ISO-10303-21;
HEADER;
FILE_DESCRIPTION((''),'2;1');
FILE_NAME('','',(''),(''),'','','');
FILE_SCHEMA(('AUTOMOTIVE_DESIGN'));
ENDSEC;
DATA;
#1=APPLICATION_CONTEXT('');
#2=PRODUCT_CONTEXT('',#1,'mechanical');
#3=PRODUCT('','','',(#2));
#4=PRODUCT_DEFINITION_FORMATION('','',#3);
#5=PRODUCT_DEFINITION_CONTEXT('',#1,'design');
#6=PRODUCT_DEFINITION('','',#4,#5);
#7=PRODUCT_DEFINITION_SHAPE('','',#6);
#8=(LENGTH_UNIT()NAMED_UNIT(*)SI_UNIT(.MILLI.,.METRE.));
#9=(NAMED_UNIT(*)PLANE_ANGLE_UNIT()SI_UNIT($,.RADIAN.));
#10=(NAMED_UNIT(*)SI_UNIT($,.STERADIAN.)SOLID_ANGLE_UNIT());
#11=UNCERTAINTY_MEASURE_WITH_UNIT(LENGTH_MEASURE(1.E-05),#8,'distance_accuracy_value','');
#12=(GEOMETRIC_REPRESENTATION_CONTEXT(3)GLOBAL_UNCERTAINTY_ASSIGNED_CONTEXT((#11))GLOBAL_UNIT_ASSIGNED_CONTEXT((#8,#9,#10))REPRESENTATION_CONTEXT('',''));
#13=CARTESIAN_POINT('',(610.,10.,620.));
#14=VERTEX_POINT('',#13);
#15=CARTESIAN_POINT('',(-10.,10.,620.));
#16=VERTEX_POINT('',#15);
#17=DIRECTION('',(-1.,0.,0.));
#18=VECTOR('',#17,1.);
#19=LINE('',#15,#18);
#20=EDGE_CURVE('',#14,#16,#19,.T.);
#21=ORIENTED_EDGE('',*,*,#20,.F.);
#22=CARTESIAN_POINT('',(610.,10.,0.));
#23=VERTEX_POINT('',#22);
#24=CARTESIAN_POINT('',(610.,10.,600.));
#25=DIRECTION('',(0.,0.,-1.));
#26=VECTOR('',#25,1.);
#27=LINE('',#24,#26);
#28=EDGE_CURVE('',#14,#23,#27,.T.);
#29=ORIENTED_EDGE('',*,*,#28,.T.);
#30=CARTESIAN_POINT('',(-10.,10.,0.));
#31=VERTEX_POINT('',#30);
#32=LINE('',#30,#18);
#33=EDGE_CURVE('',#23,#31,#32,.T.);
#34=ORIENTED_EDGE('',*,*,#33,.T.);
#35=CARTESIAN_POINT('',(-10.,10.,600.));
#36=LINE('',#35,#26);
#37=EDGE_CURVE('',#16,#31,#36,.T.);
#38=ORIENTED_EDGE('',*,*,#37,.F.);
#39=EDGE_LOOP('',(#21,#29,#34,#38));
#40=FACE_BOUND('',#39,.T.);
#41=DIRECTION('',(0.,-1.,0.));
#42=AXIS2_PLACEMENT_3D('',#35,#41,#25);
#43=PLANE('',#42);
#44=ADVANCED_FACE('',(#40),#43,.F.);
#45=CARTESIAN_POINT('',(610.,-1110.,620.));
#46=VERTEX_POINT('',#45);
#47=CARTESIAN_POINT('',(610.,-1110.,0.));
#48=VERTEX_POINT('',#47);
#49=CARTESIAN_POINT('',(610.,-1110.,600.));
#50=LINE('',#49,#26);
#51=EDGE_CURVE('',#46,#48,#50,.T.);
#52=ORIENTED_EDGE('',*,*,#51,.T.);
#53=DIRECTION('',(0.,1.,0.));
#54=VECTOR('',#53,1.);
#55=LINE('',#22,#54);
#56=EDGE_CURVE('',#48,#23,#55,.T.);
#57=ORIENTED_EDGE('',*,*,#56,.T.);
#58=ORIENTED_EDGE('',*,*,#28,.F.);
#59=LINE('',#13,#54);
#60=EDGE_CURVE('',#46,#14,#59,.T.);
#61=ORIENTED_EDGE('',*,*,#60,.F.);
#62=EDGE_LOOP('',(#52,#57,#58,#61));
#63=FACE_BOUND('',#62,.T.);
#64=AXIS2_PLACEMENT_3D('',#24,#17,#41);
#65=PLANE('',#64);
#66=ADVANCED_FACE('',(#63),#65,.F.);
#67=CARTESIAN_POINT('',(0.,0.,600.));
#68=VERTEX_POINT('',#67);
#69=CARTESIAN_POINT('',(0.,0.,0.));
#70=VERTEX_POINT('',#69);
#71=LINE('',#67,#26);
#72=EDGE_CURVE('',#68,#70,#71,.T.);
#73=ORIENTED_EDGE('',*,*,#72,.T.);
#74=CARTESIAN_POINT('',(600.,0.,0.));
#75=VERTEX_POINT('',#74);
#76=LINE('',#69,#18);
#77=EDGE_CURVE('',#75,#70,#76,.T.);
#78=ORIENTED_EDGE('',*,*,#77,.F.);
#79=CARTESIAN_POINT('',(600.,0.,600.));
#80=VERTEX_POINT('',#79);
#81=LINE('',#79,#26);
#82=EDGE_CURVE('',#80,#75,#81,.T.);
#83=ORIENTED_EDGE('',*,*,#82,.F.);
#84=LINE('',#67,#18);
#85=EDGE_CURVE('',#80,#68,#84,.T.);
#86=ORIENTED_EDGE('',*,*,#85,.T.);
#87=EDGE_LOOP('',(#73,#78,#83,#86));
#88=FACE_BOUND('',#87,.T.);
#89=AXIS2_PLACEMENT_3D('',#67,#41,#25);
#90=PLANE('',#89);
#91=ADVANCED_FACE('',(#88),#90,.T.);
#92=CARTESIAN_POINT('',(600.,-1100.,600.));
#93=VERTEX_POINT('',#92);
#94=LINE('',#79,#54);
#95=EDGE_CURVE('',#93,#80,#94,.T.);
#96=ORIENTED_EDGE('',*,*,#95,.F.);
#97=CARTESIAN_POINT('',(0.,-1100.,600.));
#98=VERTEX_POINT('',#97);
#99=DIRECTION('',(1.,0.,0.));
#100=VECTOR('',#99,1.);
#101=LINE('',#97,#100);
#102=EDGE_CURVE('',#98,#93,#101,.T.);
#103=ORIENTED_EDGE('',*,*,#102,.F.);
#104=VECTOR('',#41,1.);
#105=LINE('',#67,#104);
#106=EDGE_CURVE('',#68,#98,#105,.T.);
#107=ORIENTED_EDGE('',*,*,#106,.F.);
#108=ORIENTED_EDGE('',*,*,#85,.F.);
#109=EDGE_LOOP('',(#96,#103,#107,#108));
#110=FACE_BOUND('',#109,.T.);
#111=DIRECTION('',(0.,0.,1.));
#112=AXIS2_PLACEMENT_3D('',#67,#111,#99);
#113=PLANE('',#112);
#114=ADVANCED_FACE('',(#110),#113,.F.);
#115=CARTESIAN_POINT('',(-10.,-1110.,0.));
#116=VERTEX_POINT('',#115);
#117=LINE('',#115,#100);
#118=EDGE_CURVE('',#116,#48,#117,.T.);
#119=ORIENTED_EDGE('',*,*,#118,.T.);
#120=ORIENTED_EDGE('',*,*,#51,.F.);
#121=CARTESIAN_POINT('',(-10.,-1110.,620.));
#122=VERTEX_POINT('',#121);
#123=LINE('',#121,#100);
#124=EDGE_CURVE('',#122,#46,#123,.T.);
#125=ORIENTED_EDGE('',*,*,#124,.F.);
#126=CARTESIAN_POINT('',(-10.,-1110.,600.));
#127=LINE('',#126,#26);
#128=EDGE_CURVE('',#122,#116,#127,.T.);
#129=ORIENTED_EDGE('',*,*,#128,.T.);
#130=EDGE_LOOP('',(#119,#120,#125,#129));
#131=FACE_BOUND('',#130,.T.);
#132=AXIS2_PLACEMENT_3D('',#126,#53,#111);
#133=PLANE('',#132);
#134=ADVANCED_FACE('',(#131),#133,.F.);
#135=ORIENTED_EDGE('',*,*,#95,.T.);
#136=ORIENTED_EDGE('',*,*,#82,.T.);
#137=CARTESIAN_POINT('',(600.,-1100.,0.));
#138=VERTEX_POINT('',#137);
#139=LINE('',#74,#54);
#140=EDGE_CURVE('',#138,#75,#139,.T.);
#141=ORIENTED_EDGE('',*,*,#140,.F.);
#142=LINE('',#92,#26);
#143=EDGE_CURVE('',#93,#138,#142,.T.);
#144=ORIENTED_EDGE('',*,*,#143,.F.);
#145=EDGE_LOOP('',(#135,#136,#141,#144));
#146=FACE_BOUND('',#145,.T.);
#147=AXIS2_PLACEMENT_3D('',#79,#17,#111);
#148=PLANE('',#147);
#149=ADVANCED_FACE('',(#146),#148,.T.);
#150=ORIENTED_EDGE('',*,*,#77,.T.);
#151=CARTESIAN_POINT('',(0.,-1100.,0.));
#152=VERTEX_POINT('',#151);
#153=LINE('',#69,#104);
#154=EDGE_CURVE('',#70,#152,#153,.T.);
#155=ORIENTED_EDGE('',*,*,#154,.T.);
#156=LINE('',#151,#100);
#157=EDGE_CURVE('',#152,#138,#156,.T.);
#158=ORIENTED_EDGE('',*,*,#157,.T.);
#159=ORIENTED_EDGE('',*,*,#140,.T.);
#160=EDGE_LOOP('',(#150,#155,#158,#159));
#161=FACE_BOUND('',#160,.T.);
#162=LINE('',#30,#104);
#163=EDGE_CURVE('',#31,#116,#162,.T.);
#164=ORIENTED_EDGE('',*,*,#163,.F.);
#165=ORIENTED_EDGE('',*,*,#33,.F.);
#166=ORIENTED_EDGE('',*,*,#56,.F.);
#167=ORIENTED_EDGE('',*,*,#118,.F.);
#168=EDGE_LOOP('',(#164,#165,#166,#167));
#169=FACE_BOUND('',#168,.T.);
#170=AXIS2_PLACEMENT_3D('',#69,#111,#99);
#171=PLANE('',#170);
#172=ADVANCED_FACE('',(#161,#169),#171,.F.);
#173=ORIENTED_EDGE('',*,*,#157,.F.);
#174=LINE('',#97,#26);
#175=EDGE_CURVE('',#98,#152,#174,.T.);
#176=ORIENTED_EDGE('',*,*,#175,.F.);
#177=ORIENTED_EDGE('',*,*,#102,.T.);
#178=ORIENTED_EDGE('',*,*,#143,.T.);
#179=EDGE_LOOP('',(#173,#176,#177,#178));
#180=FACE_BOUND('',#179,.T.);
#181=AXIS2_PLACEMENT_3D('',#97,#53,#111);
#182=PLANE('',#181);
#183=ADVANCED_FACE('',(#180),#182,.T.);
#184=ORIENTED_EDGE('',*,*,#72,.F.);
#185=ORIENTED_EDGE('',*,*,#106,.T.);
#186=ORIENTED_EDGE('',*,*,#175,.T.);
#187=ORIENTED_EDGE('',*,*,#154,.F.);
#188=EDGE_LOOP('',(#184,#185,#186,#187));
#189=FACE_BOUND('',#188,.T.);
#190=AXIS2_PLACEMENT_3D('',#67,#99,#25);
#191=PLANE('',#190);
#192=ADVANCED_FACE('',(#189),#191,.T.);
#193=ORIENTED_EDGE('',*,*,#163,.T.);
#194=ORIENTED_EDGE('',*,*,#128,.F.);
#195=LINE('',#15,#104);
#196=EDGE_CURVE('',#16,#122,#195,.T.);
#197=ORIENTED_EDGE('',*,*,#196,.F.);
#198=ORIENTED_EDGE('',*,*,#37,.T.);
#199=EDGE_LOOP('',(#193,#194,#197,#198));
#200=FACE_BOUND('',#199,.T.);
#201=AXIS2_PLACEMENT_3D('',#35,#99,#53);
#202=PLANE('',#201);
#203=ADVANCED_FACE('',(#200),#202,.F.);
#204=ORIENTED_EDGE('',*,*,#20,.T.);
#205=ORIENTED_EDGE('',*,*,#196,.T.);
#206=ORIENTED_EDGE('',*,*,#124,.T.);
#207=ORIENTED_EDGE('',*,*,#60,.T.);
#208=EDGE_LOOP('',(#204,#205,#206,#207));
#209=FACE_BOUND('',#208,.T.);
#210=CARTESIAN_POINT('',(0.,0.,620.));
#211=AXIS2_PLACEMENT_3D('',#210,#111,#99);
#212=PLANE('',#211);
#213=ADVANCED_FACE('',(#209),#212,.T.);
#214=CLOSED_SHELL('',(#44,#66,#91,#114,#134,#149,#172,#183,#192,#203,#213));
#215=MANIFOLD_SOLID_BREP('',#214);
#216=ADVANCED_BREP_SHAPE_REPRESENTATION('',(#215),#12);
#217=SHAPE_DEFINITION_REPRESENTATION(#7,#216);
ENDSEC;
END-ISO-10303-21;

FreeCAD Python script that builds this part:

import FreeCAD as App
import Part
import Sketcher


def add_polygon(sketch, points):
    """Adds a closed chain of lines whose ends are joined by coincident constraints."""
    first, n = sketch.GeometryCount, len(points)
    for a, b in zip(points, points[1:] + points[:1]):
        sketch.addGeometry(Part.LineSegment(App.Vector(*a, 0), App.Vector(*b, 0)), False)
    for i in range(n):
        sketch.addConstraint(Sketcher.Constraint("Coincident", first + i, 2, first + (i + 1) % n, 1))

doc = App.newDocument("Part")
body = doc.addObject("PartDesign::Body", "Body")

# Sketch on XY plane
sketch1 = body.newObject("Sketcher::SketchObject", "Sketch")
sketch1.AttachmentSupport = (doc.getObject("XY_Plane"), [""])
sketch1.MapMode = "FlatFace"
add_polygon(sketch1, [(-10, 10), (-10, -1110), (610, -1110), (610, 10)])  # lines 0-3
add_polygon(sketch1, [(600, -1100), (0, -1100), (0, 0), (600, 0)])  # lines 4-7
sketch1.addConstraint([
    Sketcher.Constraint("Vertical", 0),
    Sketcher.Constraint("Horizontal", 1),
    Sketcher.Constraint("Vertical", 2),
    Sketcher.Constraint("Horizontal", 3),
    Sketcher.Constraint("Horizontal", 4),
    Sketcher.Constraint("Vertical", 5),
    Sketcher.Constraint("Horizontal", 6),
    Sketcher.Constraint("Vertical", 7),
    Sketcher.Constraint("Coincident", 5, 2, -1, 1),
    Sketcher.Constraint("DistanceX", 1, 1, 1, 2, 620.0),
    Sketcher.Constraint("DistanceX", 4, 2, 4, 1, 600.0),
    Sketcher.Constraint("DistanceY", 0, 2, 0, 1, 1120.0),
    Sketcher.Constraint("DistanceY", 5, 1, 5, 2, 1100.0),
    Sketcher.Constraint("DistanceX", 0, 2, -1, 1, 10.0),
    Sketcher.Constraint("DistanceY", 0, 2, -1, 1, 1110.0),
])
pad1 = body.newObject("PartDesign::Pad", "Pad")
pad1.Profile = sketch1
pad1.Length = 600

# Sketch on XY plane
sketch2 = body.newObject("Sketcher::SketchObject", "Sketch001")
sketch2.AttachmentSupport = (doc.getObject("XY_Plane"), [""])
sketch2.MapMode = "FlatFace"
sketch2.AttachmentOffset = App.Placement(App.Vector(0, 0, 600), App.Rotation())
add_polygon(sketch2, [(-10, 10), (-10, -1110), (610, -1110), (610, 10)])  # lines 0-3
sketch2.addConstraint([
    Sketcher.Constraint("Vertical", 0),
    Sketcher.Constraint("Horizontal", 1),
    Sketcher.Constraint("Vertical", 2),
    Sketcher.Constraint("Horizontal", 3),
    Sketcher.Constraint("DistanceX", 1, 1, 1, 2, 620.0),
    Sketcher.Constraint("DistanceY", 0, 2, 0, 1, 1120.0),
    Sketcher.Constraint("DistanceX", 0, 2, -1, 1, 10.0),
    Sketcher.Constraint("DistanceY", 0, 2, -1, 1, 1110.0),
])
pad2 = body.newObject("PartDesign::Pad", "Pad001")
pad2.Profile = sketch2
pad2.Length = 20

doc.recompute()
